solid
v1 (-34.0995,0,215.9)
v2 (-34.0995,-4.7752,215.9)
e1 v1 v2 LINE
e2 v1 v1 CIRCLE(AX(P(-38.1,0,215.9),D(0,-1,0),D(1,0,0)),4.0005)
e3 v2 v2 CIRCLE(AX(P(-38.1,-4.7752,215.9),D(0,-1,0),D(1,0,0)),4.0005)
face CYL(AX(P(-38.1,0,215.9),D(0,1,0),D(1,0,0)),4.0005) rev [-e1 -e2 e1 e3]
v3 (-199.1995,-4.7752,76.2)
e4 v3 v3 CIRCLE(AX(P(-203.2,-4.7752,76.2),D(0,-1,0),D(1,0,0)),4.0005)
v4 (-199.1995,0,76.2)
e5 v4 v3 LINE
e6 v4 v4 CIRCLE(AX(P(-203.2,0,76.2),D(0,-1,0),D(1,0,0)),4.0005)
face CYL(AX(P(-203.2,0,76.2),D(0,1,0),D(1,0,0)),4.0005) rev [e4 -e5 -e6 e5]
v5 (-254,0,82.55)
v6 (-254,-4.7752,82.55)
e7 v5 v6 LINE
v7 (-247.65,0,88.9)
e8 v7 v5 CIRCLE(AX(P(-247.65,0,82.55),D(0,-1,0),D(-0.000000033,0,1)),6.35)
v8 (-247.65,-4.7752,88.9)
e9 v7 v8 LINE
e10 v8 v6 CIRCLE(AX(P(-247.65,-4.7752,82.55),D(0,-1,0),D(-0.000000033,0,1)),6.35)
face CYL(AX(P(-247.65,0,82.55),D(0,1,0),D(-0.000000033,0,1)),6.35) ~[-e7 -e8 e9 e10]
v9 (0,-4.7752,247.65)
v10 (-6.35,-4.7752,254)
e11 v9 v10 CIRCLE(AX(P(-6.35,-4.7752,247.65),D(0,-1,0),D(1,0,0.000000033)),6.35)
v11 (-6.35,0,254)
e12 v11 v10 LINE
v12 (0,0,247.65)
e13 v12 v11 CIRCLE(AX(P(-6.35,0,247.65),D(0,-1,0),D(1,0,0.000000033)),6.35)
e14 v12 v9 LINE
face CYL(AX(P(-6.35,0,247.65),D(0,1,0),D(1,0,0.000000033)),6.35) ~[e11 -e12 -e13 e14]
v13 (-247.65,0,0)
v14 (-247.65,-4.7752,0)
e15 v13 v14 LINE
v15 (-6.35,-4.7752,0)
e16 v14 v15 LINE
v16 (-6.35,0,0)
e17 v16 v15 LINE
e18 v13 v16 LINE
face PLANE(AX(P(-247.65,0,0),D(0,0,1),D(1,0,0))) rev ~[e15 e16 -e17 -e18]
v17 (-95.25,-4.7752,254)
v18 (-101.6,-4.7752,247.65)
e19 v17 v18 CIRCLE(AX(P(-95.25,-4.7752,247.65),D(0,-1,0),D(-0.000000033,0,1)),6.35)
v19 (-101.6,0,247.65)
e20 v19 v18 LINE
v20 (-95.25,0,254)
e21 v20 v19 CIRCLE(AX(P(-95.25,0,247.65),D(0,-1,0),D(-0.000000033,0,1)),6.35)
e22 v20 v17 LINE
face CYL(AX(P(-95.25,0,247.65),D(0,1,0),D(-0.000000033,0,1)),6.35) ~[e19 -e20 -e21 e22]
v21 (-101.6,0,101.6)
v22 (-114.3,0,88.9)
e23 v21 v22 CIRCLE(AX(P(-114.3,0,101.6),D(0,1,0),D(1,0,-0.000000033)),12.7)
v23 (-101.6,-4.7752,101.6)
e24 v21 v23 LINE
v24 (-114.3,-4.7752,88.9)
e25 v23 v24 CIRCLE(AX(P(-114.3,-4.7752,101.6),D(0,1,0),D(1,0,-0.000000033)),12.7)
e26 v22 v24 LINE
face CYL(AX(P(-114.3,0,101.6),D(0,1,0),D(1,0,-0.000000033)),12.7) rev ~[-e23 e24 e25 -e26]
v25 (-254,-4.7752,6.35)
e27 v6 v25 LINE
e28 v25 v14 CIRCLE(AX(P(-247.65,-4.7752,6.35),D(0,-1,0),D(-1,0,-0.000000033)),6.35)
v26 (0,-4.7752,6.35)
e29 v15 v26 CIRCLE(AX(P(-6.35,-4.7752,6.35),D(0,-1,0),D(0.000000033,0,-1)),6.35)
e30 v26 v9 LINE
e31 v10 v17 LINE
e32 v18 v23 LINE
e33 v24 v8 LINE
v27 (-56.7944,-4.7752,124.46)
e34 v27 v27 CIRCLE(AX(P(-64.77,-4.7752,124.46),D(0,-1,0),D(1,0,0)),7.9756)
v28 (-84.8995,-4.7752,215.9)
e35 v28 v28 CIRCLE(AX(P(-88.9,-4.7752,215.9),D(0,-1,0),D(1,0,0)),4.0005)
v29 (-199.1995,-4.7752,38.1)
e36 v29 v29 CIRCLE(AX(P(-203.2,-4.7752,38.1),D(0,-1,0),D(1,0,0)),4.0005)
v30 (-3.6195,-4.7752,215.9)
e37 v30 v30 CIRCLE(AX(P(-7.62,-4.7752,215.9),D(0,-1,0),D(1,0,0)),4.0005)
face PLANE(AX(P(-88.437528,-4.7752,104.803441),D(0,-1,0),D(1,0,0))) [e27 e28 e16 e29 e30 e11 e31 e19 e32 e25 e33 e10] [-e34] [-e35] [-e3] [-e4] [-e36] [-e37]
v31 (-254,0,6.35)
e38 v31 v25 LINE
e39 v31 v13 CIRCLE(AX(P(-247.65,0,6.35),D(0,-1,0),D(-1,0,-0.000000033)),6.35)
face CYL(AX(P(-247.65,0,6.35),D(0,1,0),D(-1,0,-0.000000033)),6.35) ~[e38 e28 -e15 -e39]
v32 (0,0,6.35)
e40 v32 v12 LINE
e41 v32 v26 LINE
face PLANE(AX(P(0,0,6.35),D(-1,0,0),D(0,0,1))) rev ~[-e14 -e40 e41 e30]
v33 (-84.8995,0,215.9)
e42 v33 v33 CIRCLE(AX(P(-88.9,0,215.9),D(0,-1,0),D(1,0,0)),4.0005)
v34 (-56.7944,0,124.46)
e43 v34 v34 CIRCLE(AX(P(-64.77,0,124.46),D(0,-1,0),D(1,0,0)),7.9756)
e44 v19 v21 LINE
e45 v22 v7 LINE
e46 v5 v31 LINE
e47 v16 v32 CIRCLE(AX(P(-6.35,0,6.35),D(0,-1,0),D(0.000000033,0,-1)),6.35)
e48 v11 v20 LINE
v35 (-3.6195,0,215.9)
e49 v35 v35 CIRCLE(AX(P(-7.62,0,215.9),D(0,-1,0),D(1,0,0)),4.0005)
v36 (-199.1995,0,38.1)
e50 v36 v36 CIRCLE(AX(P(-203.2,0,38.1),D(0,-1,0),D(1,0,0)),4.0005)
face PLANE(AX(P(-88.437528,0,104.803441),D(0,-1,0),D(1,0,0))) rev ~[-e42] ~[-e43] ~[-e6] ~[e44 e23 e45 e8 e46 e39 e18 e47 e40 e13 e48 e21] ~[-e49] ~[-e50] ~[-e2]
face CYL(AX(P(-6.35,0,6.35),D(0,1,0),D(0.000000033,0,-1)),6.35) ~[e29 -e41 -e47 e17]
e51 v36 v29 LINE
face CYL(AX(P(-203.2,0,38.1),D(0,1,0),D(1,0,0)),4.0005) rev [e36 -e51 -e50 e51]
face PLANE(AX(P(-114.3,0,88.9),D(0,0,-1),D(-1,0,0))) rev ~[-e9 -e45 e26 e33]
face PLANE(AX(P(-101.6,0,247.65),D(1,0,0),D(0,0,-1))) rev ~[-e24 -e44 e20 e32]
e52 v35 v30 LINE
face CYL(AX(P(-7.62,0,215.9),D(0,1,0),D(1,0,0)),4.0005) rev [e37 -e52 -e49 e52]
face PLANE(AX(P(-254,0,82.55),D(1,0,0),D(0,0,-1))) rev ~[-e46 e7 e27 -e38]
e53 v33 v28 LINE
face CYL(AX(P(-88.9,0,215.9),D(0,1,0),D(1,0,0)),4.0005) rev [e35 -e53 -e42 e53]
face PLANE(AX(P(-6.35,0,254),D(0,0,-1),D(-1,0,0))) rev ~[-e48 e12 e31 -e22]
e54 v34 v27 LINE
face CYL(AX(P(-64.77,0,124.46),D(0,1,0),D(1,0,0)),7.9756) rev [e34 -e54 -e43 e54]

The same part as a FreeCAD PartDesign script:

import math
import FreeCAD as App
import Part
import Sketcher

V = App.Vector
Q = App.Units.Quantity

doc = App.newDocument("Part")
params = doc.addObject("Spreadsheet::Sheet", "Params")
for row, (alias, value) in enumerate([
    ("sketch1_radius", "0.5 in"),
    ("sketch1_height", "3 in"),
    ("sketch1_radius2", "0.25 in"),
    ("sketch1_diameter", "0.315 in"),
    ("sketch1_diameter2", "0.628 in"),
    ("pad1_length", "0.188 in"),
], start=1):
    params.set(f"A{row}", alias)
    params.set(f"B{row}", "=" + value)
    params.setAlias(f"B{row}", alias)

body = doc.addObject("PartDesign::Body", "Body")

sketch1 = body.newObject("Sketcher::SketchObject", "Sketch")
sketch1.AttachmentSupport = (doc.getObject("XZ_Plane"), [""])
sketch1.MapMode = "FlatFace"
sketch1.addGeometry(Part.ArcOfCircle(Part.Circle(V(-6.4, 6.4, 0), V(0, 0, 1), 6.4), math.radians(-90), math.radians(0)), False)
sketch1.addGeometry(Part.LineSegment(V(0, 6.3, 0), V(0, 247.7, 0)), False)
sketch1.addGeometry(Part.ArcOfCircle(Part.Circle(V(-6.4, 247.6, 0), V(0, 0, 1), 6.4), math.radians(0), math.radians(90)), False)
sketch1.addGeometry(Part.LineSegment(V(-6.3, 254, 0), V(-95.2, 254, 0)), False)
sketch1.addGeometry(Part.ArcOfCircle(Part.Circle(V(-95.2, 247.6, 0), V(0, 0, 1), 6.4), math.radians(90), math.radians(180)), False)
sketch1.addGeometry(Part.LineSegment(V(-101.6, 247.7, 0), V(-101.6, 101.6, 0)), False)
sketch1.addGeometry(Part.ArcOfCircle(Part.Circle(V(-114.3, 101.6, 0), V(0, 0, 1), 12.7), math.radians(-90), math.radians(0)), False)
sketch1.addGeometry(Part.LineSegment(V(-114.3, 88.9, 0), V(-247.7, 88.9, 0)), False)
sketch1.addGeometry(Part.ArcOfCircle(Part.Circle(V(-247.6, 82.5, 0), V(0, 0, 1), 6.4), math.radians(90), math.radians(180)), False)
sketch1.addGeometry(Part.LineSegment(V(-254, 82.5, 0), V(-254, 6.3, 0)), False)
sketch1.addGeometry(Part.ArcOfCircle(Part.Circle(V(-247.6, 6.4, 0), V(0, 0, 1), 6.4), math.radians(-180), math.radians(-90)), False)
sketch1.addGeometry(Part.LineSegment(V(-247.7, 0, 0), V(-6.3, 0, 0)), False)
sketch1.addGeometry(Part.Circle(V(-203.2, 38.1, 0), V(0, 0, 1), 4), False)
sketch1.addGeometry(Part.Circle(V(-203.2, 76.2, 0), V(0, 0, 1), 4), False)
sketch1.addGeometry(Part.Circle(V(-64.8, 124.5, 0), V(0, 0, 1), 8), False)
sketch1.addGeometry(Part.Circle(V(-88.9, 215.9, 0), V(0, 0, 1), 4), False)
sketch1.addGeometry(Part.Circle(V(-38.1, 215.9, 0), V(0, 0, 1), 4), False)
sketch1.addGeometry(Part.Circle(V(-7.6, 215.9, 0), V(0, 0, 1), 4), False)
sketch1.addConstraint(Sketcher.Constraint("Tangent", 0, 2, 1, 1))
sketch1.addConstraint(Sketcher.Constraint("Tangent", 1, 2, 2, 1))
sketch1.addConstraint(Sketcher.Constraint("Tangent", 2, 2, 3, 1))
sketch1.addConstraint(Sketcher.Constraint("Tangent", 3, 2, 4, 1))
sketch1.addConstraint(Sketcher.Constraint("Tangent", 4, 2, 5, 1))
sketch1.addConstraint(Sketcher.Constraint("Tangent", 5, 2, 6, 2))
sketch1.addConstraint(Sketcher.Constraint("Tangent", 6, 1, 7, 1))
sketch1.addConstraint(Sketcher.Constraint("Tangent", 7, 2, 8, 1))
sketch1.addConstraint(Sketcher.Constraint("Tangent", 8, 2, 9, 1))
sketch1.addConstraint(Sketcher.Constraint("Tangent", 9, 2, 10, 1))
sketch1.addConstraint(Sketcher.Constraint("Tangent", 10, 2, 11, 1))
sketch1.addConstraint(Sketcher.Constraint("Tangent", 11, 2, 0, 1))
sketch1.addConstraint(Sketcher.Constraint("Vertical", 1))
sketch1.addConstraint(Sketcher.Constraint("Horizontal", 3))
sketch1.addConstraint(Sketcher.Constraint("Vertical", 5))
sketch1.addConstraint(Sketcher.Constraint("Horizontal", 7))
sketch1.addConstraint(Sketcher.Constraint("Vertical", 9))
sketch1.addConstraint(Sketcher.Constraint("Horizontal", 11))
sketch1.addConstraint(Sketcher.Constraint("Equal", 0, 2))
sketch1.addConstraint(Sketcher.Constraint("Equal", 2, 4))
sketch1.addConstraint(Sketcher.Constraint("Equal", 4, 8))
sketch1.addConstraint(Sketcher.Constraint("Equal", 8, 10))
sketch1.addConstraint(Sketcher.Constraint("Equal", 12, 13))
sketch1.addConstraint(Sketcher.Constraint("Equal", 13, 15))
sketch1.addConstraint(Sketcher.Constraint("Equal", 15, 16))
sketch1.addConstraint(Sketcher.Constraint("Equal", 16, 17))
sketch1.addConstraint(Sketcher.Constraint("PointOnObject", 0, 2, -2))
sketch1.addConstraint(Sketcher.Constraint("PointOnObject", 10, 2, -1))
sketch1.addConstraint(Sketcher.Constraint("Horizontal", 15, 3, 16, 3))
sketch1.addConstraint(Sketcher.Constraint("Horizontal", 16, 3, 17, 3))
sketch1.addConstraint(Sketcher.Constraint("Vertical", 12, 3, 13, 3))
sketch1.addConstraint(Sketcher.Constraint("Equal", 11, 1))
sketch1.addConstraint(Sketcher.Constraint("Radius", 6, Q("0.5 in")))
sketch1.addConstraint(Sketcher.Constraint("DistanceY", 9, 2, 9, 1, Q("3 in")))
sketch1.addConstraint(Sketcher.Constraint("Radius", 0, Q("0.25 in")))
sketch1.addConstraint(Sketcher.Constraint("Diameter", 12, Q("0.315 in")))
sketch1.addConstraint(Sketcher.Constraint("Diameter", 14, Q("0.628 in")))
sketch1.addConstraint(Sketcher.Constraint("DistanceX", 3, 2, 3, 1, Q("3.5 in")))
sketch1.addConstraint(Sketcher.Constraint("DistanceX", 11, 1, 11, 2, Q("9.5 in")))
sketch1.addConstraint(Sketcher.Constraint("DistanceX", 12, 3, -1, 1, Q("8 in")))
sketch1.addConstraint(Sketcher.Constraint("DistanceY", -1, 1, 13, 3, Q("3 in")))
sketch1.addConstraint(Sketcher.Constraint("DistanceX", 6, 3, 15, 3, Q("1 in")))
sketch1.addConstraint(Sketcher.Constraint("DistanceX", 15, 3, 16, 3, Q("2 in")))
sketch1.addConstraint(Sketcher.Constraint("DistanceY", 12, 3, 6, 1, Q("2 in")))
sketch1.addConstraint(Sketcher.Constraint("DistanceY", -1, 1, 14, 3, Q("4.9 in")))
sketch1.addConstraint(Sketcher.Constraint("DistanceY", -1, 1, 15, 3, Q("8.5 in")))
sketch1.addConstraint(Sketcher.Constraint("DistanceX", 17, 3, -1, 1, Q("0.3 in")))
sketch1.addConstraint(Sketcher.Constraint("DistanceX", 4, 3, 14, 3, Q("1.2 in")))
sketch1.setExpression("Constraints[32]", "Params.sketch1_radius")
sketch1.setExpression("Constraints[33]", "Params.sketch1_height")
sketch1.setExpression("Constraints[34]", "Params.sketch1_radius2")
sketch1.setExpression("Constraints[35]", "Params.sketch1_diameter")
sketch1.setExpression("Constraints[36]", "Params.sketch1_diameter2")
pad1 = body.newObject("PartDesign::Pad", "Pad")
pad1.Profile = sketch1
pad1.setExpression("Length", "Params.pad1_length")

doc.recompute()
